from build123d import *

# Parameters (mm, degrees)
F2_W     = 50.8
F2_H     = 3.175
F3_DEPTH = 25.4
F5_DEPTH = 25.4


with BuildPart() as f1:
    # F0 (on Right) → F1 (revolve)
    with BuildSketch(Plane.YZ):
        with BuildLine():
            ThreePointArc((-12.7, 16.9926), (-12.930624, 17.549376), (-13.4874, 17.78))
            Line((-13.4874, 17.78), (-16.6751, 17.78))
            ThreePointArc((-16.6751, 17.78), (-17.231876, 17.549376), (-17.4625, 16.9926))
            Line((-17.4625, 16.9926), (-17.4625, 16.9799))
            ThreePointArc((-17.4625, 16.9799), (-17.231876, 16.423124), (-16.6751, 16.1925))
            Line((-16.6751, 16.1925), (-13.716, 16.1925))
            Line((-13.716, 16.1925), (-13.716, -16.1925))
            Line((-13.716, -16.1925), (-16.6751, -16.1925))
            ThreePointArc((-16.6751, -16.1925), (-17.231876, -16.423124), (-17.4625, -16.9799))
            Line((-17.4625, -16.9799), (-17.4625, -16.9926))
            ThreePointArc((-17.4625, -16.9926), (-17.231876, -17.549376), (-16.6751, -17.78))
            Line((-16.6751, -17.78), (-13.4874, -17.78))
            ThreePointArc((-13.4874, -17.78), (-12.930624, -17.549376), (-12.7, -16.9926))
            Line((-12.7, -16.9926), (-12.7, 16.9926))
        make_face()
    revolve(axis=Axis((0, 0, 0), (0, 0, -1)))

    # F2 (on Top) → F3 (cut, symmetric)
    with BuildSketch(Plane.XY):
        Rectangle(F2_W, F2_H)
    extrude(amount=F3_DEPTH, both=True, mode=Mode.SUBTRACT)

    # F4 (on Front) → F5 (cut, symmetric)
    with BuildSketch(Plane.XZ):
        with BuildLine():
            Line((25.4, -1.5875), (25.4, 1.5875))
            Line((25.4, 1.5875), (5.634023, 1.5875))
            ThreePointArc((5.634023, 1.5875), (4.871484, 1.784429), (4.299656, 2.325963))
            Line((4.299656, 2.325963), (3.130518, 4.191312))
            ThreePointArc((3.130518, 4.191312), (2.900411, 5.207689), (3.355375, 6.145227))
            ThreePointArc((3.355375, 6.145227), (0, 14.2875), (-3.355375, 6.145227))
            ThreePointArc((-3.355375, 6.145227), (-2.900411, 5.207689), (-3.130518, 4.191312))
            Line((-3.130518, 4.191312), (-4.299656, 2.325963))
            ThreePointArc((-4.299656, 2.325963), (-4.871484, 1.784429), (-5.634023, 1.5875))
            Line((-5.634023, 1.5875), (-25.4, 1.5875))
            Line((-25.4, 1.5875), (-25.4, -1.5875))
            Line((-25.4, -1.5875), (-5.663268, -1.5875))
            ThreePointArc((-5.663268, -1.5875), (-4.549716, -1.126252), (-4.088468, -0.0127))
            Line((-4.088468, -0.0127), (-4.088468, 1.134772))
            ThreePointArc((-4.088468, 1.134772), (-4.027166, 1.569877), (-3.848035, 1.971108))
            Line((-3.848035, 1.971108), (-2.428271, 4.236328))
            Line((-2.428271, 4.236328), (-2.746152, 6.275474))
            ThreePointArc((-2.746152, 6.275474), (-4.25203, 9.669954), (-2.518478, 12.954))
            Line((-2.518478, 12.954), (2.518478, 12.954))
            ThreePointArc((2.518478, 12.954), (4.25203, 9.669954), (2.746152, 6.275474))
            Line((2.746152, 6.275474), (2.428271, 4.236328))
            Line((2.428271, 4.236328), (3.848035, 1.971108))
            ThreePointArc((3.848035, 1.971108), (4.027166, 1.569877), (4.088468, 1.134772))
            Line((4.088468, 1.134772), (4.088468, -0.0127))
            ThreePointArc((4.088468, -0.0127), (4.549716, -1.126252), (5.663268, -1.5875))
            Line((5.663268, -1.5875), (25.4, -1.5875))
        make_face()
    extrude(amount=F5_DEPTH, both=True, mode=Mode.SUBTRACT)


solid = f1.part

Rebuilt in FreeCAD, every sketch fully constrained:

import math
import FreeCAD as App
import Part
import Sketcher
from FreeCAD import Vector
Q = App.Units.Quantity


def add_polygon(sketch, points):
    """Adds a closed chain of lines whose ends are joined by coincident constraints."""
    first, n = sketch.GeometryCount, len(points)
    for a, b in zip(points, points[1:] + points[:1]):
        sketch.addGeometry(Part.LineSegment(App.Vector(*a, 0), App.Vector(*b, 0)), False)
    for i in range(n):
        sketch.addConstraint(Sketcher.Constraint("Coincident", first + i, 2, first + (i + 1) % n, 1))

doc = App.newDocument("Part")
body = doc.addObject("PartDesign::Body", "Body")
body.AllowCompound = True

# Sketch on YZ plane
sketch1 = body.newObject("Sketcher::SketchObject", "Sketch")
sketch1.AttachmentSupport = (doc.getObject("YZ_Plane"), [""])
sketch1.MapMode = "FlatFace"
sketch1.addGeometry([
    Part.ArcOfCircle(Part.Circle(Vector(-13.487, 16.993, 0), Vector(0, 0, 1), 0.787), math.radians(0), math.radians(90)),  # 0
    Part.LineSegment(Vector(-13.487, 17.78, 0), Vector(-16.675, 17.78, 0)),  # 1
    Part.ArcOfCircle(Part.Circle(Vector(-16.675, 16.993, 0), Vector(0, 0, 1), 0.787), math.radians(90), math.radians(180)),  # 2
    Part.LineSegment(Vector(-17.462, 16.993, 0), Vector(-17.462, 16.98, 0)),  # 3
    Part.ArcOfCircle(Part.Circle(Vector(-16.675, 16.98, 0), Vector(0, 0, 1), 0.787), math.radians(180), math.radians(270)),  # 4
    Part.LineSegment(Vector(-16.675, 16.192, 0), Vector(-13.716, 16.192, 0)),  # 5
    Part.LineSegment(Vector(-13.716, 16.192, 0), Vector(-13.716, -16.192, 0)),  # 6
    Part.LineSegment(Vector(-13.716, -16.192, 0), Vector(-16.675, -16.192, 0)),  # 7
    Part.ArcOfCircle(Part.Circle(Vector(-16.675, -16.98, 0), Vector(0, 0, 1), 0.787), math.radians(90), math.radians(180)),  # 8
    Part.LineSegment(Vector(-17.462, -16.98, 0), Vector(-17.462, -16.993, 0)),  # 9
    Part.ArcOfCircle(Part.Circle(Vector(-16.675, -16.993, 0), Vector(0, 0, 1), 0.787), math.radians(180), math.radians(270)),  # 10
    Part.LineSegment(Vector(-16.675, -17.78, 0), Vector(-13.487, -17.78, 0)),  # 11
    Part.ArcOfCircle(Part.Circle(Vector(-13.487, -16.993, 0), Vector(0, 0, 1), 0.787), math.radians(-90), math.radians(0)),  # 12
    Part.LineSegment(Vector(-12.7, -16.993, 0), Vector(-12.7, 16.993, 0)),  # 13
], False)
sketch1.addConstraint([
    Sketcher.Constraint("Tangent", 0, 2, 1, 1),
    Sketcher.Constraint("Tangent", 1, 2, 2, 1),
    Sketcher.Constraint("Tangent", 2, 2, 3, 1),
    Sketcher.Constraint("Tangent", 3, 2, 4, 1),
    Sketcher.Constraint("Tangent", 4, 2, 5, 1),
    Sketcher.Constraint("Coincident", 5, 2, 6, 1),
    Sketcher.Constraint("Coincident", 6, 2, 7, 1),
    Sketcher.Constraint("Tangent", 7, 2, 8, 1),
    Sketcher.Constraint("Tangent", 8, 2, 9, 1),
    Sketcher.Constraint("Tangent", 9, 2, 10, 1),
    Sketcher.Constraint("Tangent", 10, 2, 11, 1),
    Sketcher.Constraint("Tangent", 11, 2, 12, 1),
    Sketcher.Constraint("Tangent", 12, 2, 13, 1),
    Sketcher.Constraint("Tangent", 13, 2, 0, 1),
    Sketcher.Constraint("Horizontal", 1),
    Sketcher.Constraint("Vertical", 3),
    Sketcher.Constraint("Horizontal", 5),
    Sketcher.Constraint("Vertical", 6),
    Sketcher.Constraint("Horizontal", 7),
    Sketcher.Constraint("Vertical", 9),
    Sketcher.Constraint("Horizontal", 11),
    Sketcher.Constraint("Vertical", 13),
    Sketcher.Constraint("Equal", 0, 2),
    Sketcher.Constraint("Equal", 2, 4),
    Sketcher.Constraint("Equal", 4, 8),
    Sketcher.Constraint("Equal", 8, 10),
    Sketcher.Constraint("Equal", 10, 12),
    Sketcher.Constraint("Symmetric", 4, 3, 8, 3, -1),
    Sketcher.Constraint("Equal", 3, 9),
    Sketcher.Constraint("Radius", 0, Q("0.031 in")),
    Sketcher.Constraint("DistanceY", -1, 1, 0, 2, Q("0.7 in")),
    Sketcher.Constraint("DistanceX", 12, 2, -1, 1, Q("0.5 in")),
    Sketcher.Constraint("DistanceY", 6, 2, 6, 1, Q("1.275 in")),
    Sketcher.Constraint("DistanceX", 5, 2, -1, 1, Q("0.54 in")),
    Sketcher.Constraint("DistanceX", 1, 2, 1, 1, Q("0.1255 in")),
])
revolution = body.newObject("PartDesign::Revolution", "Revolution")
revolution.Profile = sketch1
revolution.ReferenceAxis = (sketch1, ["V_Axis"])
revolution.Angle = 360

# Sketch on XY plane
sketch2 = body.newObject("Sketcher::SketchObject", "Sketch001")
sketch2.AttachmentSupport = (doc.getObject("XY_Plane"), [""])
sketch2.MapMode = "FlatFace"
add_polygon(sketch2, [(-25.4, 1.6), (-25.4, -1.6), (25.4, -1.6), (25.4, 1.6)])  # lines 0-3
sketch2.addConstraint([
    Sketcher.Constraint("Vertical", 0),
    Sketcher.Constraint("Horizontal", 1),
    Sketcher.Constraint("Vertical", 2),
    Sketcher.Constraint("Horizontal", 3),
    Sketcher.Constraint("Symmetric", 0, 2, 2, 2, -1, 1),
    Sketcher.Constraint("DistanceX", 1, 1, 1, 2, Q("2 in")),
    Sketcher.Constraint("DistanceY", 0, 2, 0, 1, Q("0.125 in")),
])
pocket1 = body.newObject("PartDesign::Pocket", "Pocket")
pocket1.Profile = sketch2
pocket1.Length = Q("2 in")
pocket1.Midplane = True

# Sketch on XZ plane
sketch3 = body.newObject("Sketcher::SketchObject", "Sketch002")
sketch3.AttachmentSupport = (doc.getObject("XZ_Plane"), [""])
sketch3.MapMode = "FlatFace"
sketch3.addGeometry([
    Part.LineSegment(Vector(25.4, -1.6, 0), Vector(25.4, 1.6, 0)),  # 0
    Part.LineSegment(Vector(25.4, 1.6, 0), Vector(5.6, 1.6, 0)),  # 1
    Part.ArcOfCircle(Part.Circle(Vector(5.6, 3.2, 0), Vector(0, 0, 1), 1.6), math.radians(-148), math.radians(-90)),  # 2
    Part.LineSegment(Vector(4.3, 2.3, 0), Vector(3.1, 4.2, 0)),  # 3
    Part.ArcOfCircle(Part.Circle(Vector(4.5, 5, 0), Vector(0, 0, 1), 1.6), math.radians(135), math.radians(212)),  # 4
    Part.ArcOfCircle(Part.Circle(Vector(0, 9.5, 0), Vector(0, 0, 1), 4.8), math.radians(-45), math.radians(225)),  # 5
    Part.ArcOfCircle(Part.Circle(Vector(-4.5, 5, 0), Vector(0, 0, 1), 1.6), math.radians(-32), math.radians(45)),  # 6
    Part.LineSegment(Vector(-3.1, 4.2, 0), Vector(-4.3, 2.3, 0)),  # 7
    Part.ArcOfCircle(Part.Circle(Vector(-5.6, 3.2, 0), Vector(0, 0, 1), 1.6), math.radians(-90), math.radians(-32)),  # 8
    Part.LineSegment(Vector(-5.6, 1.6, 0), Vector(-25.4, 1.6, 0)),  # 9
    Part.LineSegment(Vector(-25.4, 1.6, 0), Vector(-25.4, -1.6, 0)),  # 10
    Part.LineSegment(Vector(-25.4, -1.6, 0), Vector(-5.7, -1.6, 0)),  # 11
    Part.ArcOfCircle(Part.Circle(Vector(-5.7, 0, 0), Vector(0, 0, 1), 1.6), math.radians(-90), math.radians(0)),  # 12
    Part.LineSegment(Vector(-4.1, 0, 0), Vector(-4.1, 1.1, 0)),  # 13
    Part.ArcOfCircle(Part.Circle(Vector(-2.5, 1.1, 0), Vector(0, 0, 1), 1.6), math.radians(148), math.radians(180)),  # 14
    Part.LineSegment(Vector(-3.8, 2, 0), Vector(-2.4, 4.2, 0)),  # 15
    Part.LineSegment(Vector(-2.4, 4.2, 0), Vector(-2.7, 6.3, 0)),  # 16
    Part.ArcOfCircle(Part.Circle(Vector(0, 9.5, 0), Vector(0, 0, 1), 4.3), math.radians(126), math.radians(230)),  # 17
    Part.LineSegment(Vector(-2.5, 13, 0), Vector(2.5, 13, 0)),  # 18
    Part.ArcOfCircle(Part.Circle(Vector(0, 9.5, 0), Vector(0, 0, 1), 4.3), math.radians(-50), math.radians(54)),  # 19
    Part.LineSegment(Vector(2.7, 6.3, 0), Vector(2.4, 4.2, 0)),  # 20
    Part.LineSegment(Vector(2.4, 4.2, 0), Vector(3.8, 2, 0)),  # 21
    Part.ArcOfCircle(Part.Circle(Vector(2.5, 1.1, 0), Vector(0, 0, 1), 1.6), math.radians(0), math.radians(32)),  # 22
    Part.LineSegment(Vector(4.1, 1.1, 0), Vector(4.1, 0, 0)),  # 23
    Part.ArcOfCircle(Part.Circle(Vector(5.7, 0, 0), Vector(0, 0, 1), 1.6), math.radians(180), math.radians(270)),  # 24
    Part.LineSegment(Vector(5.7, -1.6, 0), Vector(25.4, -1.6, 0)),  # 25
], False)
sketch3.addConstraint([
    Sketcher.Constraint("Coincident", 0, 2, 1, 1),
    Sketcher.Constraint("Tangent", 1, 2, 2, 2),
    Sketcher.Constraint("Tangent", 2, 1, 3, 1),
    Sketcher.Constraint("Tangent", 3, 2, 4, 2),
    Sketcher.Constraint("Tangent", 4, 1, 5, 1),
    Sketcher.Constraint("Tangent", 5, 2, 6, 2),
    Sketcher.Constraint("Tangent", 6, 1, 7, 1),
    Sketcher.Constraint("Tangent", 7, 2, 8, 2),
    Sketcher.Constraint("Tangent", 8, 1, 9, 1),
    Sketcher.Constraint("Coincident", 9, 2, 10, 1),
    Sketcher.Constraint("Coincident", 10, 2, 11, 1),
    Sketcher.Constraint("Tangent", 11, 2, 12, 1),
    Sketcher.Constraint("Tangent", 12, 2, 13, 1),
    Sketcher.Constraint("Coincident", 13, 2, 14, 2),
    Sketcher.Constraint("Tangent", 14, 1, 15, 1),
    Sketcher.Constraint("Coincident", 15, 2, 16, 1),
    Sketcher.Constraint("Coincident", 16, 2, 17, 2),
    Sketcher.Constraint("Coincident", 17, 1, 18, 1),
    Sketcher.Constraint("Coincident", 18, 2, 19, 2),
    Sketcher.Constraint("Coincident", 19, 1, 20, 1),
    Sketcher.Constraint("Coincident", 20, 2, 21, 1),
    Sketcher.Constraint("Tangent", 21, 2, 22, 2),
    Sketcher.Constraint("Coincident", 22, 1, 23, 1),
    Sketcher.Constraint("Tangent", 23, 2, 24, 1),
    Sketcher.Constraint("Tangent", 24, 2, 25, 1),
    Sketcher.Constraint("Coincident", 25, 2, 0, 1),
    Sketcher.Constraint("Vertical", 0),
    Sketcher.Constraint("Horizontal", 1),
    Sketcher.Constraint("Horizontal", 9),
    Sketcher.Constraint("Vertical", 10),
    Sketcher.Constraint("Horizontal", 11),
    Sketcher.Constraint("Vertical", 13),
    Sketcher.Constraint("Horizontal", 18),
    Sketcher.Constraint("Vertical", 23),
    Sketcher.Constraint("Horizontal", 25),
    Sketcher.Constraint("Coincident", 17, 3, 5, 3),
    Sketcher.Constraint("Coincident", 19, 3, 5, 3),
    Sketcher.Constraint("Equal", 2, 4),
    Sketcher.Constraint("Equal", 4, 6),
    Sketcher.Constraint("Equal", 6, 8),
    Sketcher.Constraint("Equal", 6, 12),
    Sketcher.Constraint("Equal", 17, 19),
    Sketcher.Constraint("Equal", 14, 22),
    Sketcher.Constraint("Equal", 12, 24),
    Sketcher.Constraint("Symmetric", 0, 2, 10, 2, -1, 1),
    Sketcher.Constraint("Symmetric", 4, 3, 6, 3, -2),
    Sketcher.Constraint("Symmetric", 2, 3, 8, 3, -2),
    Sketcher.Constraint("Symmetric", 14, 3, 22, 3, -2),
    Sketcher.Constraint("Symmetric", 15, 2, 20, 2, -2),
    Sketcher.Constraint("Parallel", 7, 15),
    Sketcher.Constraint("Horizontal", 12, 3, 24, 3),
    Sketcher.Constraint("Horizontal", 16, 2, 19, 1),
    Sketcher.Constraint("Horizontal", 13, 2, 22, 1),
    Sketcher.Constraint("DistanceX", -1, 1, 0, 2, Q("1 in")),
    Sketcher.Constraint("Radius", 2, Q("0.0620001 in")),
    Sketcher.Constraint("Radius", 5, Q("0.1875 in")),
    Sketcher.Constraint("Radius", 17, Q("0.1675 in")),
    Sketcher.Constraint("DistanceY", 0, 1, 0, 2, Q("0.125 in")),
    Sketcher.Constraint("DistanceY", -1, 1, 17, 1, Q("0.51 in")),
    Sketcher.Constraint("DistanceY", -1, 1, 5, 3, Q("0.375 in")),
    Sketcher.Constraint("Radius", 14, Q("1.574812 mm")),
    Sketcher.Constraint("DistanceX", 5, 2, 15, 2, Q("0.0365002 in")),
    Sketcher.Constraint("DistanceX", 11, 1, 11, 2, Q("19.736732 mm")),
    Sketcher.Constraint("DistanceY", 13, 1, 13, 2, Q("1.147472 mm")),
    Sketcher.Constraint("DistanceX", 22, 3, 2, 1, Q("1.786 mm")),
    Sketcher.Constraint("DistanceY", 15, 2, 5, 2, Q("1.908899 mm")),
    Sketcher.Constraint("Distance", 15, Q("2.673378 mm")),
    Sketcher.Constraint("DistanceX", 16, 2, -1, 1, Q("2.746152 mm")),
])
pocket2 = body.newObject("PartDesign::Pocket", "Pocket001")
pocket2.Profile = sketch3
pocket2.Length = Q("2 in")
pocket2.Midplane = True

doc.recompute()
